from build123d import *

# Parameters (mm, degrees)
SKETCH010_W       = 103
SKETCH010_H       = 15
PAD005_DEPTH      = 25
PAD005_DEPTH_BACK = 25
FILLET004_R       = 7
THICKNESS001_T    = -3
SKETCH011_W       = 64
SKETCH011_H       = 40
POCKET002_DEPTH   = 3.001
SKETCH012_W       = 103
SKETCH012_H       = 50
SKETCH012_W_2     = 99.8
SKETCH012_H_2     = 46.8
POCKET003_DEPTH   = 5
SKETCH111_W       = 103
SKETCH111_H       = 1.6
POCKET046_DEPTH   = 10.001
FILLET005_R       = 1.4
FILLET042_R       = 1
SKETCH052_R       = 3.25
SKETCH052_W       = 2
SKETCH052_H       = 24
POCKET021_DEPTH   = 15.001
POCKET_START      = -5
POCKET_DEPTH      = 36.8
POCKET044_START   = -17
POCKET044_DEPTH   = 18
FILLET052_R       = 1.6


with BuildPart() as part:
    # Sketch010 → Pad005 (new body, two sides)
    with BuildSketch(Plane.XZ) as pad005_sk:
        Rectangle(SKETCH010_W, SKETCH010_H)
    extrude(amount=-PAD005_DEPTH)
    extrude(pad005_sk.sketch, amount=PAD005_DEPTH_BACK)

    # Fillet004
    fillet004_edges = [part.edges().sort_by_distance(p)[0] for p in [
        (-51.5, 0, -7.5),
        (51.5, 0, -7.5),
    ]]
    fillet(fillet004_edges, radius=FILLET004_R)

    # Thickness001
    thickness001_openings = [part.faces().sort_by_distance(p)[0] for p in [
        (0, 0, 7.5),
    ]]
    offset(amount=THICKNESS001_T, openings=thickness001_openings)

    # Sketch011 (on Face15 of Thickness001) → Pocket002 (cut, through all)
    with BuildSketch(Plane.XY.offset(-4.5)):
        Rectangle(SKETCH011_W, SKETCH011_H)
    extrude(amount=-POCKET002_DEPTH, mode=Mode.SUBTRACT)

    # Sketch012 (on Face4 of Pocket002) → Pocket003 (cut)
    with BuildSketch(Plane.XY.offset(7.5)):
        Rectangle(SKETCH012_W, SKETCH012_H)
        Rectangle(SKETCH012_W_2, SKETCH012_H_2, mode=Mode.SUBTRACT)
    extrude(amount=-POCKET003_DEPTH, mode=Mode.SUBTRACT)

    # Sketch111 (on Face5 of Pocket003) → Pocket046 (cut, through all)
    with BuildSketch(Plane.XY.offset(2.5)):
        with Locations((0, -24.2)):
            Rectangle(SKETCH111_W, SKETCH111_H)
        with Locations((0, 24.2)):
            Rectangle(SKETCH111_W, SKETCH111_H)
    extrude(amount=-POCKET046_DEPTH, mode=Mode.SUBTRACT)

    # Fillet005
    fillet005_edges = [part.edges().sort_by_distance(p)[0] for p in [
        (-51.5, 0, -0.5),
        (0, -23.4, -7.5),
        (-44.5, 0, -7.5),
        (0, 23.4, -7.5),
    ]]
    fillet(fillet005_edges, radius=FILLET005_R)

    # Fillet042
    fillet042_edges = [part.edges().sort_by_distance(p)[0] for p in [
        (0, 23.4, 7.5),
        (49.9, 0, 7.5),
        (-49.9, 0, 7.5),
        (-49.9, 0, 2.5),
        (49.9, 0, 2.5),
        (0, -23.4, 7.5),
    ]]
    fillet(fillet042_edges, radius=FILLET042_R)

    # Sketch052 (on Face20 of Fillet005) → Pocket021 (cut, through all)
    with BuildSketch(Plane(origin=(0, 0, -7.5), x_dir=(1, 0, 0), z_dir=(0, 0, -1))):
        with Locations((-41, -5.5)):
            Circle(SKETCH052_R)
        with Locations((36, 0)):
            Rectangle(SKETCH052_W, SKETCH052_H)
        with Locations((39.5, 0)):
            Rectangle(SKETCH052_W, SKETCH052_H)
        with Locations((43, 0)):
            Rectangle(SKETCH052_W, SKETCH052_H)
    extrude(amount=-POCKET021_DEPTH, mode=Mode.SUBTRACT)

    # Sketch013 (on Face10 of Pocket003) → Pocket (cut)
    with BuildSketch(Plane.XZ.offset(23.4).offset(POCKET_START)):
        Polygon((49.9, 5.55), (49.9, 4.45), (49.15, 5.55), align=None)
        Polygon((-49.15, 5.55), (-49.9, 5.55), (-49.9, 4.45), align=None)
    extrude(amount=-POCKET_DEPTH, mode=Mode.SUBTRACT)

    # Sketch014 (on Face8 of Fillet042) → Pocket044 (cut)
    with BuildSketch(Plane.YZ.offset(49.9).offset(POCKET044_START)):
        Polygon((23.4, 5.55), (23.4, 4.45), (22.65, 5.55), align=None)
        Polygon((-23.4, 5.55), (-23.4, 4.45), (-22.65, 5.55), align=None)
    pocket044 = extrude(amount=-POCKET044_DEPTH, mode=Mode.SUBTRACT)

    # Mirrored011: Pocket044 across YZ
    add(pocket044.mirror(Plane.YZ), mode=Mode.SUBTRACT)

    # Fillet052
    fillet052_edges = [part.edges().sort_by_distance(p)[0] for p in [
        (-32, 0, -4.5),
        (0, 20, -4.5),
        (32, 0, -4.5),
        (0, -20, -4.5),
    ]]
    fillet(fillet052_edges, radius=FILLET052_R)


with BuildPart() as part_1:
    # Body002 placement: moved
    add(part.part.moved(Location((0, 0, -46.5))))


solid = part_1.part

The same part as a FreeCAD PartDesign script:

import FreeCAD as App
import Part
import Sketcher


def edges_at(feature, points):
    """Names of the edges that pass closest to the given points."""
    edges = feature.Shape.Edges
    near = lambda p: min(range(len(edges)), key=lambda i: edges[i].distToShape(Part.Vertex(*p))[0])
    return sorted({f"Edge{near(p) + 1}" for p in points})


def faces_at(feature, points):
    """Names of the faces that lie closest to the given points."""
    faces = feature.Shape.Faces
    near = lambda p: min(range(len(faces)), key=lambda i: faces[i].distToShape(Part.Vertex(*p))[0])
    return sorted({f"Face{near(p) + 1}" for p in points})

doc = App.newDocument("Part")
body = doc.addObject("PartDesign::Body", "Body")

sketch1 = doc.addObject("Sketcher::SketchObject", "Sketch")
body.addObject(sketch1)
sketch1.AttachmentSupport = (doc.XZ_Plane, [""])
sketch1.MapMode = "FlatFace"
sketch1.addGeometry([
    Part.LineSegment(App.Vector(-51.5, 7.5, 0), App.Vector(-51.5, -7.5, 0)),
    Part.LineSegment(App.Vector(-51.5, -7.5, 0), App.Vector(51.5, -7.5, 0)),
    Part.LineSegment(App.Vector(51.5, -7.5, 0), App.Vector(51.5, 7.5, 0)),
    Part.LineSegment(App.Vector(51.5, 7.5, 0), App.Vector(-51.5, 7.5, 0)),
], False)
sketch1.addConstraint([
    Sketcher.Constraint("Coincident", 0, 2, 1, 1),
    Sketcher.Constraint("Coincident", 1, 2, 2, 1),
    Sketcher.Constraint("Coincident", 2, 2, 3, 1),
    Sketcher.Constraint("Coincident", 3, 2, 0, 1),
    Sketcher.Constraint("Vertical", 0),
    Sketcher.Constraint("Horizontal", 1),
    Sketcher.Constraint("Vertical", 2),
    Sketcher.Constraint("Horizontal", 3),
    Sketcher.Constraint("Symmetric", 0, 2, 2, 2, -1, 1),
    Sketcher.Constraint("DistanceX", 1, 1, 1, 2, 103.0),
    Sketcher.Constraint("DistanceY", 0, 2, 0, 1, 15.0),
])
pad1 = doc.addObject("PartDesign::Pad", "Pad")
body.addObject(pad1)
pad1.Profile = sketch1
pad1.Type = "TwoLengths"
pad1.Length = 25
pad1.Length2 = 25
pad1.Reversed = True
doc.recompute()

fillet = doc.addObject("PartDesign::Fillet", "Fillet")
body.addObject(fillet)
fillet.Base = (pad1, edges_at(pad1, [(-51.5, 0, -7.5), (51.5, 0, -7.5)]))
fillet.Radius = 7
doc.recompute()

thickness = doc.addObject("PartDesign::Thickness", "Thickness")
body.addObject(thickness)
thickness.Base = (fillet, faces_at(fillet, [(0, 0, 7.5)]))
thickness.Value = 3
thickness.Reversed = True
thickness.Join = "Arc"

sketch2 = doc.addObject("Sketcher::SketchObject", "Sketch001")
body.addObject(sketch2)
sketch2.AttachmentSupport = (doc.XY_Plane, [""])
sketch2.MapMode = "FlatFace"
sketch2.AttachmentOffset = App.Placement(App.Vector(0, 0, -4.5), App.Rotation())
sketch2.addGeometry([
    Part.LineSegment(App.Vector(-32, 20, 0), App.Vector(-32, -20, 0)),
    Part.LineSegment(App.Vector(-32, -20, 0), App.Vector(32, -20, 0)),
    Part.LineSegment(App.Vector(32, -20, 0), App.Vector(32, 20, 0)),
    Part.LineSegment(App.Vector(32, 20, 0), App.Vector(-32, 20, 0)),
], False)
sketch2.addConstraint([
    Sketcher.Constraint("Coincident", 0, 2, 1, 1),
    Sketcher.Constraint("Coincident", 1, 2, 2, 1),
    Sketcher.Constraint("Coincident", 2, 2, 3, 1),
    Sketcher.Constraint("Coincident", 3, 2, 0, 1),
    Sketcher.Constraint("Vertical", 0),
    Sketcher.Constraint("Horizontal", 1),
    Sketcher.Constraint("Vertical", 2),
    Sketcher.Constraint("Horizontal", 3),
    Sketcher.Constraint("Symmetric", 0, 2, 2, 2, -1, 1),
    Sketcher.Constraint("DistanceX", 1, 1, 1, 2, 64.0),
    Sketcher.Constraint("DistanceY", 0, 2, 0, 1, 40.0),
])
pocket1 = doc.addObject("PartDesign::Pocket", "Pocket")
body.addObject(pocket1)
pocket1.Profile = sketch2
pocket1.Type = "ThroughAll"

sketch3 = doc.addObject("Sketcher::SketchObject", "Sketch002")
body.addObject(sketch3)
sketch3.AttachmentSupport = (doc.XY_Plane, [""])
sketch3.MapMode = "FlatFace"
sketch3.AttachmentOffset = App.Placement(App.Vector(0, 0, 7.5), App.Rotation())
sketch3.addGeometry([
    Part.LineSegment(App.Vector(-51.5, 25, 0), App.Vector(-51.5, -25, 0)),
    Part.LineSegment(App.Vector(-51.5, -25, 0), App.Vector(51.5, -25, 0)),
    Part.LineSegment(App.Vector(51.5, -25, 0), App.Vector(51.5, 25, 0)),
    Part.LineSegment(App.Vector(51.5, 25, 0), App.Vector(-51.5, 25, 0)),
    Part.LineSegment(App.Vector(49.9, -23.4, 0), App.Vector(-49.9, -23.4, 0)),
    Part.LineSegment(App.Vector(-49.9, -23.4, 0), App.Vector(-49.9, 23.4, 0)),
    Part.LineSegment(App.Vector(-49.9, 23.4, 0), App.Vector(49.9, 23.4, 0)),
    Part.LineSegment(App.Vector(49.9, 23.4, 0), App.Vector(49.9, -23.4, 0)),
], False)
sketch3.addConstraint([
    Sketcher.Constraint("Coincident", 0, 2, 1, 1),
    Sketcher.Constraint("Coincident", 1, 2, 2, 1),
    Sketcher.Constraint("Coincident", 2, 2, 3, 1),
    Sketcher.Constraint("Coincident", 3, 2, 0, 1),
    Sketcher.Constraint("Coincident", 4, 2, 5, 1),
    Sketcher.Constraint("Coincident", 5, 2, 6, 1),
    Sketcher.Constraint("Coincident", 6, 2, 7, 1),
    Sketcher.Constraint("Coincident", 7, 2, 4, 1),
    Sketcher.Constraint("Vertical", 0),
    Sketcher.Constraint("Horizontal", 1),
    Sketcher.Constraint("Vertical", 2),
    Sketcher.Constraint("Horizontal", 3),
    Sketcher.Constraint("Horizontal", 4),
    Sketcher.Constraint("Vertical", 5),
    Sketcher.Constraint("Horizontal", 6),
    Sketcher.Constraint("Vertical", 7),
    Sketcher.Constraint("Symmetric", 0, 2, 2, 2, -1, 1),
    Sketcher.Constraint("Symmetric", 4, 2, 6, 2, -1, 1),
    Sketcher.Constraint("DistanceX", 1, 1, 1, 2, 103.0),
    Sketcher.Constraint("DistanceY", 0, 2, 0, 1, 50.0),
    Sketcher.Constraint("DistanceX", 4, 2, 4, 1, 99.8),
    Sketcher.Constraint("DistanceY", 5, 1, 5, 2, 46.8),
])
pocket2 = doc.addObject("PartDesign::Pocket", "Pocket001")
body.addObject(pocket2)
pocket2.Profile = sketch3
pocket2.Length = 5

sketch4 = doc.addObject("Sketcher::SketchObject", "Sketch003")
body.addObject(sketch4)
sketch4.AttachmentSupport = (doc.XY_Plane, [""])
sketch4.MapMode = "FlatFace"
sketch4.AttachmentOffset = App.Placement(App.Vector(0, 0, 2.5), App.Rotation())
sketch4.addGeometry([
    Part.LineSegment(App.Vector(-51.5, -23.4, 0), App.Vector(-51.5, -25, 0)),
    Part.LineSegment(App.Vector(-51.5, -25, 0), App.Vector(51.5, -25, 0)),
    Part.LineSegment(App.Vector(51.5, -25, 0), App.Vector(51.5, -23.4, 0)),
    Part.LineSegment(App.Vector(51.5, -23.4, 0), App.Vector(-51.5, -23.4, 0)),
    Part.LineSegment(App.Vector(-51.5, 25, 0), App.Vector(-51.5, 23.4, 0)),
    Part.LineSegment(App.Vector(-51.5, 23.4, 0), App.Vector(51.5, 23.4, 0)),
    Part.LineSegment(App.Vector(51.5, 23.4, 0), App.Vector(51.5, 25, 0)),
    Part.LineSegment(App.Vector(51.5, 25, 0), App.Vector(-51.5, 25, 0)),
], False)
sketch4.addConstraint([
    Sketcher.Constraint("Coincident", 0, 2, 1, 1),
    Sketcher.Constraint("Coincident", 1, 2, 2, 1),
    Sketcher.Constraint("Coincident", 2, 2, 3, 1),
    Sketcher.Constraint("Coincident", 3, 2, 0, 1),
    Sketcher.Constraint("Coincident", 4, 2, 5, 1),
    Sketcher.Constraint("Coincident", 5, 2, 6, 1),
    Sketcher.Constraint("Coincident", 6, 2, 7, 1),
    Sketcher.Constraint("Coincident", 7, 2, 4, 1),
    Sketcher.Constraint("Vertical", 0),
    Sketcher.Constraint("Horizontal", 1),
    Sketcher.Constraint("Vertical", 2),
    Sketcher.Constraint("Horizontal", 3),
    Sketcher.Constraint("Vertical", 4),
    Sketcher.Constraint("Horizontal", 5),
    Sketcher.Constraint("Vertical", 6),
    Sketcher.Constraint("Horizontal", 7),
    Sketcher.Constraint("Symmetric", 2, 2, 4, 2, -1, 1),
    Sketcher.Constraint("Symmetric", 0, 2, 6, 2, -1, 1),
    Sketcher.Constraint("Vertical", 3, 2, 4, 2),
    Sketcher.Constraint("DistanceX", 1, 1, 1, 2, 103.0),
    Sketcher.Constraint("DistanceY", 0, 2, 0, 1, 1.6),
    Sketcher.Constraint("DistanceY", 0, 2, -1, 1, 25.0),
])
pocket3 = doc.addObject("PartDesign::Pocket", "Pocket002")
body.addObject(pocket3)
pocket3.Profile = sketch4
pocket3.Type = "ThroughAll"
doc.recompute()

fillet2 = doc.addObject("PartDesign::Fillet", "Fillet001")
body.addObject(fillet2)
fillet2.Base = (pocket3, edges_at(pocket3, [
    (-51.5, 0, -0.5),
    (0, -23.4, -7.5),
    (-44.5, 0, -7.5),
    (0, 23.4, -7.5),
]))
fillet2.Radius = 1.4
doc.recompute()

fillet3 = doc.addObject("PartDesign::Fillet", "Fillet002")
body.addObject(fillet3)
fillet3.Base = (fillet2, edges_at(fillet2, [
    (0, 23.4, 7.5),
    (49.9, 0, 7.5),
    (-49.9, 0, 7.5),
    (-49.9, 0, 2.5),
    (49.9, 0, 2.5),
    (0, -23.4, 7.5),
]))
fillet3.Radius = 1

sketch5 = doc.addObject("Sketcher::SketchObject", "Sketch004")
body.addObject(sketch5)
sketch5.AttachmentSupport = (doc.XY_Plane, [""])
sketch5.MapMode = "FlatFace"
sketch5.AttachmentOffset = App.Placement(App.Vector(0, 0, -7.5), App.Rotation())
sketch5.addGeometry([
    Part.Circle(App.Vector(-41, 5.5, 0), App.Vector(0, 0, 1), 3.25),
    Part.LineSegment(App.Vector(35, -12, 0), App.Vector(35, 12, 0)),
    Part.LineSegment(App.Vector(35, 12, 0), App.Vector(37, 12, 0)),
    Part.LineSegment(App.Vector(37, 12, 0), App.Vector(37, -12, 0)),
    Part.LineSegment(App.Vector(37, -12, 0), App.Vector(35, -12, 0)),
    Part.LineSegment(App.Vector(38.5, -12, 0), App.Vector(38.5, 12, 0)),
    Part.LineSegment(App.Vector(38.5, 12, 0), App.Vector(40.5, 12, 0)),
    Part.LineSegment(App.Vector(40.5, 12, 0), App.Vector(40.5, -12, 0)),
    Part.LineSegment(App.Vector(40.5, -12, 0), App.Vector(38.5, -12, 0)),
    Part.LineSegment(App.Vector(42, -12, 0), App.Vector(42, 12, 0)),
    Part.LineSegment(App.Vector(42, 12, 0), App.Vector(44, 12, 0)),
    Part.LineSegment(App.Vector(44, 12, 0), App.Vector(44, -12, 0)),
    Part.LineSegment(App.Vector(44, -12, 0), App.Vector(42, -12, 0)),
], False)
sketch5.addConstraint([
    Sketcher.Constraint("Coincident", 1, 2, 2, 1),
    Sketcher.Constraint("Coincident", 2, 2, 3, 1),
    Sketcher.Constraint("Coincident", 3, 2, 4, 1),
    Sketcher.Constraint("Coincident", 4, 2, 1, 1),
    Sketcher.Constraint("Coincident", 5, 2, 6, 1),
    Sketcher.Constraint("Coincident", 6, 2, 7, 1),
    Sketcher.Constraint("Coincident", 7, 2, 8, 1),
    Sketcher.Constraint("Coincident", 8, 2, 5, 1),
    Sketcher.Constraint("Coincident", 9, 2, 10, 1),
    Sketcher.Constraint("Coincident", 10, 2, 11, 1),
    Sketcher.Constraint("Coincident", 11, 2, 12, 1),
    Sketcher.Constraint("Coincident", 12, 2, 9, 1),
    Sketcher.Constraint("Vertical", 1),
    Sketcher.Constraint("Horizontal", 2),
    Sketcher.Constraint("Vertical", 3),
    Sketcher.Constraint("Horizontal", 4),
    Sketcher.Constraint("Vertical", 5),
    Sketcher.Constraint("Horizontal", 6),
    Sketcher.Constraint("Vertical", 7),
    Sketcher.Constraint("Horizontal", 8),
    Sketcher.Constraint("Vertical", 9),
    Sketcher.Constraint("Horizontal", 10),
    Sketcher.Constraint("Vertical", 11),
    Sketcher.Constraint("Horizontal", 12),
    Sketcher.Constraint("Horizontal", 2, 2, 5, 2),
    Sketcher.Constraint("Horizontal", 4, 2, 7, 2),
    Sketcher.Constraint("Horizontal", 6, 2, 9, 2),
    Sketcher.Constraint("Horizontal", 8, 2, 11, 2),
    Sketcher.Constraint("Equal", 4, 6),
    Sketcher.Constraint("Equal", 8, 10),
    Sketcher.Constraint("Diameter", 0, 6.5),
    Sketcher.Constraint("DistanceX", 2, 1, 2, 2, 2.0),
    Sketcher.Constraint("DistanceY", 1, 1, 1, 2, 24.0),
    Sketcher.Constraint("DistanceX", 0, 3, -1, 1, 41.0),
    Sketcher.Constraint("DistanceX", -1, 1, 1, 2, 35.0),
    Sketcher.Constraint("DistanceY", -1, 1, 1, 2, 12.0),
    Sketcher.Constraint("DistanceX", -1, 1, 9, 2, 42.0),
    Sketcher.Constraint("DistanceY", -1, 1, 0, 3, 5.5),
    Sketcher.Constraint("DistanceX", -1, 1, 5, 2, 38.5),
])
pocket4 = doc.addObject("PartDesign::Pocket", "Pocket003")
body.addObject(pocket4)
pocket4.Profile = sketch5
pocket4.Type = "ThroughAll"
pocket4.Reversed = True

sketch6 = doc.addObject("Sketcher::SketchObject", "Sketch005")
body.addObject(sketch6)
sketch6.AttachmentSupport = (doc.XZ_Plane, [""])
sketch6.MapMode = "FlatFace"
sketch6.AttachmentOffset = App.Placement(App.Vector(0, 0, 18.4), App.Rotation())
sketch6.addGeometry([
    Part.LineSegment(App.Vector(49.9, 4.45, 0), App.Vector(49.9, 5.55, 0)),
    Part.LineSegment(App.Vector(49.9, 5.55, 0), App.Vector(49.15, 5.55, 0)),
    Part.LineSegment(App.Vector(49.15, 5.55, 0), App.Vector(49.9, 4.45, 0)),
    Part.LineSegment(App.Vector(-49.15, 5.55, 0), App.Vector(-49.9, 5.55, 0)),
    Part.LineSegment(App.Vector(-49.9, 5.55, 0), App.Vector(-49.9, 4.45, 0)),
    Part.LineSegment(App.Vector(-49.9, 4.45, 0), App.Vector(-49.15, 5.55, 0)),
], False)
sketch6.addConstraint([
    Sketcher.Constraint("Coincident", 0, 2, 1, 1),
    Sketcher.Constraint("Coincident", 1, 2, 2, 1),
    Sketcher.Constraint("Coincident", 2, 2, 0, 1),
    Sketcher.Constraint("Coincident", 3, 2, 4, 1),
    Sketcher.Constraint("Coincident", 4, 2, 5, 1),
    Sketcher.Constraint("Coincident", 5, 2, 3, 1),
    Sketcher.Constraint("Vertical", 0),
    Sketcher.Constraint("Horizontal", 1),
    Sketcher.Constraint("Horizontal", 3),
    Sketcher.Constraint("Vertical", 4),
    Sketcher.Constraint("Symmetric", 0, 2, 3, 2, -2),
    Sketcher.Constraint("Horizontal", 2, 2, 4, 2),
    Sketcher.Constraint("Equal", 1, 3),
    Sketcher.Constraint("DistanceY", 0, 1, 0, 2, 1.1),
    Sketcher.Constraint("DistanceX", 1, 2, 1, 1, 0.75),
    Sketcher.Constraint("DistanceX", -1, 1, 0, 2, 49.9),
    Sketcher.Constraint("DistanceY", -1, 1, 0, 2, 5.55),
])
pocket5 = doc.addObject("PartDesign::Pocket", "Pocket004")
body.addObject(pocket5)
pocket5.Profile = sketch6
pocket5.Length = 36.8

sketch7 = doc.addObject("Sketcher::SketchObject", "Sketch006")
body.addObject(sketch7)
sketch7.AttachmentSupport = (doc.YZ_Plane, [""])
sketch7.MapMode = "FlatFace"
sketch7.AttachmentOffset = App.Placement(App.Vector(0, 0, 32.9), App.Rotation())
sketch7.addGeometry([
    Part.LineSegment(App.Vector(23.4, 4.45, 0), App.Vector(23.4, 5.55, 0)),
    Part.LineSegment(App.Vector(23.4, 5.55, 0), App.Vector(22.65, 5.55, 0)),
    Part.LineSegment(App.Vector(22.65, 5.55, 0), App.Vector(23.4, 4.45, 0)),
    Part.LineSegment(App.Vector(-23.4, 5.55, 0), App.Vector(-23.4, 4.45, 0)),
    Part.LineSegment(App.Vector(-23.4, 4.45, 0), App.Vector(-22.65, 5.55, 0)),
    Part.LineSegment(App.Vector(-22.65, 5.55, 0), App.Vector(-23.4, 5.55, 0)),
], False)
sketch7.addConstraint([
    Sketcher.Constraint("Coincident", 0, 2, 1, 1),
    Sketcher.Constraint("Coincident", 1, 2, 2, 1),
    Sketcher.Constraint("Coincident", 2, 2, 0, 1),
    Sketcher.Constraint("Coincident", 3, 2, 4, 1),
    Sketcher.Constraint("Coincident", 4, 2, 5, 1),
    Sketcher.Constraint("Coincident", 5, 2, 3, 1),
    Sketcher.Constraint("Vertical", 0),
    Sketcher.Constraint("Horizontal", 1),
    Sketcher.Constraint("Vertical", 3),
    Sketcher.Constraint("Horizontal", 5),
    Sketcher.Constraint("Symmetric", 2, 2, 3, 2, -2),
    Sketcher.Constraint("Symmetric", 1, 2, 4, 2, -2),
    Sketcher.Constraint("DistanceY", 0, 1, 0, 2, 1.1),
    Sketcher.Constraint("DistanceX", 1, 2, 1, 1, 0.75),
    Sketcher.Constraint("DistanceX", -1, 1, 0, 2, 23.4),
    Sketcher.Constraint("DistanceY", -1, 1, 0, 2, 5.55),
])
pocket6 = doc.addObject("PartDesign::Pocket", "Pocket005")
body.addObject(pocket6)
pocket6.Profile = sketch7
pocket6.Length = 18
doc.recompute()

mirrored = doc.addObject("PartDesign::Mirrored", "Mirrored")
body.addObject(mirrored)
mirrored.Originals = [pocket6]
mirrored.MirrorPlane = (doc.YZ_Plane, [""])
body.Tip = mirrored
doc.recompute()

fillet4 = doc.addObject("PartDesign::Fillet", "Fillet003")
body.addObject(fillet4)
fillet4.Base = (mirrored, edges_at(mirrored, [
    (-32, 0, -4.5),
    (0, 20, -4.5),
    (32, 0, -4.5),
    (0, -20, -4.5),
]))
fillet4.Radius = 1.6
body2 = doc.addObject("PartDesign::Body", "Body001")
doc.recompute()

body.Placement = App.Placement(App.Vector(0, 0, -46.5), App.Rotation(App.Vector(0, 0, 1), 0))
boolean = doc.addObject("PartDesign::Boolean", "Boolean")
body2.addObject(boolean)
boolean.Type = "Fuse"
boolean.addObjects([body])

doc.recompute()
